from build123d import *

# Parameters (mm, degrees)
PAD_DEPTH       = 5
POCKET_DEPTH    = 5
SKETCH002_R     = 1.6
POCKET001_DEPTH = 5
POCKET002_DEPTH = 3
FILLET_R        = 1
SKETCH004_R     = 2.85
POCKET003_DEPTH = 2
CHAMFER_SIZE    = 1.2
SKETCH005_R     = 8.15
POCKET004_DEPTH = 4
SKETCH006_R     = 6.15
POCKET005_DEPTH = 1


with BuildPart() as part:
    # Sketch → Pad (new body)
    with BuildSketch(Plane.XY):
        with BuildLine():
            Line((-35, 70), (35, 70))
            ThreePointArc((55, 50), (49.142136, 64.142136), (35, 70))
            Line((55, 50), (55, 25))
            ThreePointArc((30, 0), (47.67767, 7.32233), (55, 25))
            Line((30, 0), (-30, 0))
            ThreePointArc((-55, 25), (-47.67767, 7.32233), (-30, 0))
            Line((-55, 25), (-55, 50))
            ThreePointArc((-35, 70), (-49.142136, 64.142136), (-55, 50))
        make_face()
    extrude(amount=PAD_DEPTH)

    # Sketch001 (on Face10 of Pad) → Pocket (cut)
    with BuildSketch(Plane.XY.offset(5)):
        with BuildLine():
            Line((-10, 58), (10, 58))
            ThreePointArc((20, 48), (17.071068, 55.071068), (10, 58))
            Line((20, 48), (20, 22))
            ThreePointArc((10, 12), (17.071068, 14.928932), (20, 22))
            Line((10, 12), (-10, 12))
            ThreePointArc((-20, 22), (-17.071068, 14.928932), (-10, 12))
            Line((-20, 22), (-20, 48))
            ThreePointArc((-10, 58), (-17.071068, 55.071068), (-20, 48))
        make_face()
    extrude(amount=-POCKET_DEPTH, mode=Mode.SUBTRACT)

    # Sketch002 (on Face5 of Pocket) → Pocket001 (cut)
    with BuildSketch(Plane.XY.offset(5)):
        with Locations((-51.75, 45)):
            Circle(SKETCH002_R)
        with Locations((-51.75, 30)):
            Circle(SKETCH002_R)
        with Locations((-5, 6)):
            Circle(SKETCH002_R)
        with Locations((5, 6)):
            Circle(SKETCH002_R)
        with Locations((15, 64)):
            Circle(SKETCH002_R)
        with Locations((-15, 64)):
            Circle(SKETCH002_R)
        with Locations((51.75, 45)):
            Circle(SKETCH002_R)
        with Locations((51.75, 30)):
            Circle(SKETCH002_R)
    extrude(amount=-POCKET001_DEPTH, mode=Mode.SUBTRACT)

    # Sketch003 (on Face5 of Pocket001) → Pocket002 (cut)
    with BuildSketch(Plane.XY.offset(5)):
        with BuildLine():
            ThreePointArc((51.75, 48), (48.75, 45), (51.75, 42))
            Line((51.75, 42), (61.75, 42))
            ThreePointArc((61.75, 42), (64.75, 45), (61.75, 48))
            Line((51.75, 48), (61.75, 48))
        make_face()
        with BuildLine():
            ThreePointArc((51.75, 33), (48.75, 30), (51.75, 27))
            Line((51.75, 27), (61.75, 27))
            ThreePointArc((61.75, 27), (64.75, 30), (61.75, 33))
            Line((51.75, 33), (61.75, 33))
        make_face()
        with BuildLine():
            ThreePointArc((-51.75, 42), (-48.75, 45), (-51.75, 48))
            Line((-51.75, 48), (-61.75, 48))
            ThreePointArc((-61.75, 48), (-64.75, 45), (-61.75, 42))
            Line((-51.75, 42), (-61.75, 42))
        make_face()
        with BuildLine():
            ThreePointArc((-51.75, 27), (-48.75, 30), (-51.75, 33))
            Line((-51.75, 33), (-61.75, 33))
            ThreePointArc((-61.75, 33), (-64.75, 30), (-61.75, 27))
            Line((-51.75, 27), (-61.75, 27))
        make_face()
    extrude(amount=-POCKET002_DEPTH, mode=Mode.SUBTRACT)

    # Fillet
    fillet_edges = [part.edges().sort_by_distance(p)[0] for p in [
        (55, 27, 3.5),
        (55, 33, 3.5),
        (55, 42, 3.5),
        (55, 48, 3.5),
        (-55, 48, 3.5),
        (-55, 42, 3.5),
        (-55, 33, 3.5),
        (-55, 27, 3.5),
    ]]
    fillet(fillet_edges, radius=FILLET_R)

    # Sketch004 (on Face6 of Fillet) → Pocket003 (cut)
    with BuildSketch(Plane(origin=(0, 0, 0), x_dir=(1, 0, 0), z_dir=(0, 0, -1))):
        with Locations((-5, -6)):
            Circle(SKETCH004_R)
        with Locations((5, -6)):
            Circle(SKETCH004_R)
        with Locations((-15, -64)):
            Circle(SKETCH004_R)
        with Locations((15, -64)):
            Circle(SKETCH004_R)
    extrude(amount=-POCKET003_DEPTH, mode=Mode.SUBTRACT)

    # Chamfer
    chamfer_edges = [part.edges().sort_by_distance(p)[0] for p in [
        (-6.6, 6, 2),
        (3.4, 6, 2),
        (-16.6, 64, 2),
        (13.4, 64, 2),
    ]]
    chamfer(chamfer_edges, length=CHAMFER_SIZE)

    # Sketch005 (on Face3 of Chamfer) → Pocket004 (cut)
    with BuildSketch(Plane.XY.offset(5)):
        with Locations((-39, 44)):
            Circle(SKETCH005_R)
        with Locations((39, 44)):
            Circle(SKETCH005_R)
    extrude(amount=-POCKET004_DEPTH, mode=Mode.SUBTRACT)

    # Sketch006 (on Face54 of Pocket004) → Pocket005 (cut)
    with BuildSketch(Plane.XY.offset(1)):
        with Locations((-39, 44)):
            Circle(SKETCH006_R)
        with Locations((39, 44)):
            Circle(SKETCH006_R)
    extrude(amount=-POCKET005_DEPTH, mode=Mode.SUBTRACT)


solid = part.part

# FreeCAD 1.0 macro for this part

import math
import FreeCAD as App
import Part
import Sketcher


def edges_at(feature, points):
    """Names of the edges that pass closest to the given points."""
    edges = feature.Shape.Edges
    near = lambda p: min(range(len(edges)), key=lambda i: edges[i].distToShape(Part.Vertex(*p))[0])
    return sorted({f"Edge{near(p) + 1}" for p in points})

doc = App.newDocument("Part")
body = doc.addObject("PartDesign::Body", "Body")

sketch1 = body.newObject("Sketcher::SketchObject", "Sketch")
sketch1.AttachmentSupport = (doc.getObject("XY_Plane"), [""])
sketch1.MapMode = "FlatFace"
sketch1.addGeometry(Part.LineSegment(App.Vector(35, 70, 0), App.Vector(-35, 70, 0)), False)
sketch1.addGeometry(Part.ArcOfCircle(Part.Circle(App.Vector(-35, 50, 0), App.Vector(0, 0, 1), 20), math.radians(90), math.radians(180)), False)
sketch1.addGeometry(Part.LineSegment(App.Vector(-55, 50, 0), App.Vector(-55, 25, 0)), False)
sketch1.addGeometry(Part.ArcOfCircle(Part.Circle(App.Vector(-30, 25, 0), App.Vector(0, 0, 1), 25), math.radians(180), math.radians(270)), False)
sketch1.addGeometry(Part.LineSegment(App.Vector(-30, 0, 0), App.Vector(30, 0, 0)), False)
sketch1.addGeometry(Part.ArcOfCircle(Part.Circle(App.Vector(30, 25, 0), App.Vector(0, 0, 1), 25), math.radians(-90), math.radians(0)), False)
sketch1.addGeometry(Part.LineSegment(App.Vector(55, 25, 0), App.Vector(55, 50, 0)), False)
sketch1.addGeometry(Part.ArcOfCircle(Part.Circle(App.Vector(35, 50, 0), App.Vector(0, 0, 1), 20), math.radians(0), math.radians(90)), False)
sketch1.addConstraint(Sketcher.Constraint("Tangent", 0, 2, 1, 1))
sketch1.addConstraint(Sketcher.Constraint("Tangent", 1, 2, 2, 1))
sketch1.addConstraint(Sketcher.Constraint("Tangent", 2, 2, 3, 1))
sketch1.addConstraint(Sketcher.Constraint("Tangent", 3, 2, 4, 1))
sketch1.addConstraint(Sketcher.Constraint("Tangent", 4, 2, 5, 1))
sketch1.addConstraint(Sketcher.Constraint("Tangent", 5, 2, 6, 1))
sketch1.addConstraint(Sketcher.Constraint("Tangent", 6, 2, 7, 1))
sketch1.addConstraint(Sketcher.Constraint("Tangent", 7, 2, 0, 1))
sketch1.addConstraint(Sketcher.Constraint("Horizontal", 0))
sketch1.addConstraint(Sketcher.Constraint("Vertical", 2))
sketch1.addConstraint(Sketcher.Constraint("Horizontal", 4))
sketch1.addConstraint(Sketcher.Constraint("Vertical", 6))
sketch1.addConstraint(Sketcher.Constraint("Equal", 3, 5))
sketch1.addConstraint(Sketcher.Constraint("Equal", 1, 7))
sketch1.addConstraint(Sketcher.Constraint("Symmetric", 3, 2, 4, 2, -1, 1))
sketch1.addConstraint(Sketcher.Constraint("Radius", 1, 19.999999))
sketch1.addConstraint(Sketcher.Constraint("Radius", 3, 24.999998))
sketch1.addConstraint(Sketcher.Constraint("DistanceX", 0, 2, 0, 1, 70.0))
sketch1.addConstraint(Sketcher.Constraint("DistanceY", 2, 2, 2, 1, 25.0))
pad1 = body.newObject("PartDesign::Pad", "Pad")
pad1.Profile = sketch1
pad1.Length = 5

sketch2 = body.newObject("Sketcher::SketchObject", "Sketch001")
sketch2.AttachmentSupport = (doc.getObject("XY_Plane"), [""])
sketch2.MapMode = "FlatFace"
sketch2.AttachmentOffset = App.Placement(App.Vector(0, 0, 5), App.Rotation())
sketch2.addGeometry(Part.LineSegment(App.Vector(10, 58, 0), App.Vector(-10, 58, 0)), False)
sketch2.addGeometry(Part.ArcOfCircle(Part.Circle(App.Vector(-10, 48, 0), App.Vector(0, 0, 1), 10), math.radians(90), math.radians(180)), False)
sketch2.addGeometry(Part.LineSegment(App.Vector(-20, 48, 0), App.Vector(-20, 22, 0)), False)
sketch2.addGeometry(Part.ArcOfCircle(Part.Circle(App.Vector(-10, 22, 0), App.Vector(0, 0, 1), 10), math.radians(180), math.radians(270)), False)
sketch2.addGeometry(Part.LineSegment(App.Vector(-10, 12, 0), App.Vector(10, 12, 0)), False)
sketch2.addGeometry(Part.ArcOfCircle(Part.Circle(App.Vector(10, 22, 0), App.Vector(0, 0, 1), 10), math.radians(-90), math.radians(0)), False)
sketch2.addGeometry(Part.LineSegment(App.Vector(20, 22, 0), App.Vector(20, 48, 0)), False)
sketch2.addGeometry(Part.ArcOfCircle(Part.Circle(App.Vector(10, 48, 0), App.Vector(0, 0, 1), 10), math.radians(0), math.radians(90)), False)
sketch2.addConstraint(Sketcher.Constraint("Tangent", 0, 2, 1, 1))
sketch2.addConstraint(Sketcher.Constraint("Tangent", 1, 2, 2, 1))
sketch2.addConstraint(Sketcher.Constraint("Tangent", 2, 2, 3, 1))
sketch2.addConstraint(Sketcher.Constraint("Tangent", 3, 2, 4, 1))
sketch2.addConstraint(Sketcher.Constraint("Tangent", 4, 2, 5, 1))
sketch2.addConstraint(Sketcher.Constraint("Tangent", 5, 2, 6, 1))
sketch2.addConstraint(Sketcher.Constraint("Tangent", 6, 2, 7, 1))
sketch2.addConstraint(Sketcher.Constraint("Tangent", 7, 2, 0, 1))
sketch2.addConstraint(Sketcher.Constraint("Horizontal", 0))
sketch2.addConstraint(Sketcher.Constraint("Vertical", 2))
sketch2.addConstraint(Sketcher.Constraint("Horizontal", 4))
sketch2.addConstraint(Sketcher.Constraint("Vertical", 6))
sketch2.addConstraint(Sketcher.Constraint("Equal", 1, 3))
sketch2.addConstraint(Sketcher.Constraint("Equal", 3, 5))
sketch2.addConstraint(Sketcher.Constraint("Equal", 5, 7))
sketch2.addConstraint(Sketcher.Constraint("Radius", 1, 9.999999))
sketch2.addConstraint(Sketcher.Constraint("DistanceX", 0, 2, 0, 1, 20.0))
sketch2.addConstraint(Sketcher.Constraint("DistanceY", 2, 2, 2, 1, 26.0))
sketch2.addConstraint(Sketcher.Constraint("DistanceX", 1, 3, -1, 1, 10.000001))
sketch2.addConstraint(Sketcher.Constraint("DistanceY", -1, 1, 1, 3, 48.000001))
pocket1 = body.newObject("PartDesign::Pocket", "Pocket")
pocket1.Profile = sketch2
pocket1.Length = 5

sketch3 = body.newObject("Sketcher::SketchObject", "Sketch002")
sketch3.AttachmentSupport = (doc.getObject("XY_Plane"), [""])
sketch3.MapMode = "FlatFace"
sketch3.AttachmentOffset = App.Placement(App.Vector(0, 0, 5), App.Rotation())
sketch3.addGeometry(Part.Circle(App.Vector(-51.8, 45, 0), App.Vector(0, 0, 1), 1.6), False)
sketch3.addGeometry(Part.Circle(App.Vector(-51.8, 30, 0), App.Vector(0, 0, 1), 1.6), False)
sketch3.addGeometry(Part.Circle(App.Vector(-5, 6, 0), App.Vector(0, 0, 1), 1.6), False)
sketch3.addGeometry(Part.Circle(App.Vector(5, 6, 0), App.Vector(0, 0, 1), 1.6), False)
sketch3.addGeometry(Part.Circle(App.Vector(15, 64, 0), App.Vector(0, 0, 1), 1.6), False)
sketch3.addGeometry(Part.Circle(App.Vector(-15, 64, 0), App.Vector(0, 0, 1), 1.6), False)
sketch3.addGeometry(Part.Circle(App.Vector(51.8, 45, 0), App.Vector(0, 0, 1), 1.6), False)
sketch3.addGeometry(Part.Circle(App.Vector(51.8, 30, 0), App.Vector(0, 0, 1), 1.6), False)
sketch3.addConstraint(Sketcher.Constraint("Equal", 0, 1))
sketch3.addConstraint(Sketcher.Constraint("Equal", 1, 2))
sketch3.addConstraint(Sketcher.Constraint("Equal", 2, 3))
sketch3.addConstraint(Sketcher.Constraint("Equal", 3, 4))
sketch3.addConstraint(Sketcher.Constraint("Equal", 4, 5))
sketch3.addConstraint(Sketcher.Constraint("Equal", 5, 6))
sketch3.addConstraint(Sketcher.Constraint("Equal", 6, 7))
sketch3.addConstraint(Sketcher.Constraint("Symmetric", 2, 3, 3, 3, -2))
sketch3.addConstraint(Sketcher.Constraint("Symmetric", 4, 3, 5, 3, -2))
sketch3.addConstraint(Sketcher.Constraint("Symmetric", 0, 3, 6, 3, -2))
sketch3.addConstraint(Sketcher.Constraint("Symmetric", 1, 3, 7, 3, -2))
sketch3.addConstraint(Sketcher.Constraint("Vertical", 0, 3, 1, 3))
sketch3.addConstraint(Sketcher.Constraint("Diameter", 0, 3.2))
sketch3.addConstraint(Sketcher.Constraint("DistanceY", -1, 1, 0, 3, 45.0))
sketch3.addConstraint(Sketcher.Constraint("DistanceY", -1, 1, 1, 3, 30.0))
sketch3.addConstraint(Sketcher.Constraint("DistanceX", 2, 3, -1, 1, 5.0))
sketch3.addConstraint(Sketcher.Constraint("DistanceY", -1, 1, 2, 3, 6.0))
sketch3.addConstraint(Sketcher.Constraint("DistanceX", -1, 1, 4, 3, 15.0))
sketch3.addConstraint(Sketcher.Constraint("DistanceY", -1, 1, 4, 3, 64.0))
sketch3.addConstraint(Sketcher.Constraint("DistanceX", 0, 3, 6, 3, 103.5))
pocket2 = body.newObject("PartDesign::Pocket", "Pocket001")
pocket2.Profile = sketch3
pocket2.Length = 5

sketch4 = body.newObject("Sketcher::SketchObject", "Sketch003")
sketch4.AttachmentSupport = (doc.getObject("XY_Plane"), [""])
sketch4.MapMode = "FlatFace"
sketch4.AttachmentOffset = App.Placement(App.Vector(0, 0, 5), App.Rotation())
sketch4.addGeometry(Part.ArcOfCircle(Part.Circle(App.Vector(51.8, 45, 0), App.Vector(0, 0, 1), 3), math.radians(90), math.radians(270)), False)
sketch4.addGeometry(Part.LineSegment(App.Vector(51.8, 42, 0), App.Vector(61.8, 42, 0)), False)
sketch4.addGeometry(Part.ArcOfCircle(Part.Circle(App.Vector(61.8, 45, 0), App.Vector(0, 0, 1), 3), math.radians(-90), math.radians(90)), False)
sketch4.addGeometry(Part.LineSegment(App.Vector(61.8, 48, 0), App.Vector(51.8, 48, 0)), False)
sketch4.addGeometry(Part.ArcOfCircle(Part.Circle(App.Vector(51.8, 30, 0), App.Vector(0, 0, 1), 3), math.radians(90), math.radians(270)), False)
sketch4.addGeometry(Part.LineSegment(App.Vector(51.8, 27, 0), App.Vector(61.8, 27, 0)), False)
sketch4.addGeometry(Part.ArcOfCircle(Part.Circle(App.Vector(61.8, 30, 0), App.Vector(0, 0, 1), 3), math.radians(-90), math.radians(90)), False)
sketch4.addGeometry(Part.LineSegment(App.Vector(61.8, 33, 0), App.Vector(51.8, 33, 0)), False)
sketch4.addGeometry(Part.ArcOfCircle(Part.Circle(App.Vector(-51.8, 45, 0), App.Vector(0, 0, 1), 3), math.radians(-90), math.radians(90)), False)
sketch4.addGeometry(Part.LineSegment(App.Vector(-51.8, 48, 0), App.Vector(-61.8, 48, 0)), False)
sketch4.addGeometry(Part.ArcOfCircle(Part.Circle(App.Vector(-61.8, 45, 0), App.Vector(0, 0, 1), 3), math.radians(90), math.radians(270)), False)
sketch4.addGeometry(Part.LineSegment(App.Vector(-61.8, 42, 0), App.Vector(-51.8, 42, 0)), False)
sketch4.addGeometry(Part.ArcOfCircle(Part.Circle(App.Vector(-51.8, 30, 0), App.Vector(0, 0, 1), 3), math.radians(-90), math.radians(90)), False)
sketch4.addGeometry(Part.LineSegment(App.Vector(-51.8, 33, 0), App.Vector(-61.8, 33, 0)), False)
sketch4.addGeometry(Part.ArcOfCircle(Part.Circle(App.Vector(-61.8, 30, 0), App.Vector(0, 0, 1), 3), math.radians(90), math.radians(270)), False)
sketch4.addGeometry(Part.LineSegment(App.Vector(-61.8, 27, 0), App.Vector(-51.8, 27, 0)), False)
sketch4.addConstraint(Sketcher.Constraint("Tangent", 0, 2, 1, 1))
sketch4.addConstraint(Sketcher.Constraint("Tangent", 1, 2, 2, 1))
sketch4.addConstraint(Sketcher.Constraint("Tangent", 2, 2, 3, 1))
sketch4.addConstraint(Sketcher.Constraint("Tangent", 3, 2, 0, 1))
sketch4.addConstraint(Sketcher.Constraint("Tangent", 4, 2, 5, 1))
sketch4.addConstraint(Sketcher.Constraint("Tangent", 5, 2, 6, 1))
sketch4.addConstraint(Sketcher.Constraint("Tangent", 6, 2, 7, 1))
sketch4.addConstraint(Sketcher.Constraint("Tangent", 7, 2, 4, 1))
sketch4.addConstraint(Sketcher.Constraint("Tangent", 8, 2, 9, 1))
sketch4.addConstraint(Sketcher.Constraint("Tangent", 9, 2, 10, 1))
sketch4.addConstraint(Sketcher.Constraint("Tangent", 10, 2, 11, 1))
sketch4.addConstraint(Sketcher.Constraint("Tangent", 11, 2, 8, 1))
sketch4.addConstraint(Sketcher.Constraint("Tangent", 12, 2, 13, 1))
sketch4.addConstraint(Sketcher.Constraint("Tangent", 13, 2, 14, 1))
sketch4.addConstraint(Sketcher.Constraint("Tangent", 14, 2, 15, 1))
sketch4.addConstraint(Sketcher.Constraint("Tangent", 15, 2, 12, 1))
sketch4.addConstraint(Sketcher.Constraint("Horizontal", 1))
sketch4.addConstraint(Sketcher.Constraint("Horizontal", 3))
sketch4.addConstraint(Sketcher.Constraint("Horizontal", 5))
sketch4.addConstraint(Sketcher.Constraint("Horizontal", 7))
sketch4.addConstraint(Sketcher.Constraint("Horizontal", 9))
sketch4.addConstraint(Sketcher.Constraint("Horizontal", 11))
sketch4.addConstraint(Sketcher.Constraint("Horizontal", 13))
sketch4.addConstraint(Sketcher.Constraint("Horizontal", 15))
sketch4.addConstraint(Sketcher.Constraint("Equal", 2, 4))
sketch4.addConstraint(Sketcher.Constraint("Equal", 6, 8))
sketch4.addConstraint(Sketcher.Constraint("Equal", 10, 12))
sketch4.addConstraint(Sketcher.Constraint("Symmetric", 0, 3, 8, 3, -2))
sketch4.addConstraint(Sketcher.Constraint("Symmetric", 4, 3, 12, 3, -2))
sketch4.addConstraint(Sketcher.Constraint("Vertical", 0, 3, 4, 3))
sketch4.addConstraint(Sketcher.Constraint("Vertical", 2, 3, 6, 3))
sketch4.addConstraint(Sketcher.Constraint("Vertical", 10, 3, 14, 3))
sketch4.addConstraint(Sketcher.Constraint("Equal", 7, 9))
sketch4.addConstraint(Sketcher.Constraint("Radius", 0, 3.0))
sketch4.addConstraint(Sketcher.Constraint("DistanceX", 1, 1, 1, 2, 10.0))
sketch4.addConstraint(Sketcher.Constraint("DistanceY", -1, 1, 0, 3, 45.0))
sketch4.addConstraint(Sketcher.Constraint("DistanceY", -1, 1, 4, 3, 30.0))
sketch4.addConstraint(Sketcher.Constraint("DistanceX", 8, 3, 0, 3, 103.5))
pocket3 = body.newObject("PartDesign::Pocket", "Pocket002")
pocket3.Profile = sketch4
pocket3.Length = 3
doc.recompute()

fillet = body.newObject("PartDesign::Fillet", "Fillet")
fillet.Base = (pocket3, edges_at(pocket3, [
    (55, 27, 3.5),
    (55, 33, 3.5),
    (55, 42, 3.5),
    (55, 48, 3.5),
    (-55, 48, 3.5),
    (-55, 42, 3.5),
    (-55, 33, 3.5),
    (-55, 27, 3.5),
]))
fillet.Radius = 1

sketch5 = body.newObject("Sketcher::SketchObject", "Sketch004")
sketch5.AttachmentSupport = (doc.getObject("XY_Plane"), [""])
sketch5.MapMode = "FlatFace"
sketch5.addGeometry(Part.Circle(App.Vector(-5, 6, 0), App.Vector(0, 0, 1), 2.9), False)
sketch5.addGeometry(Part.Circle(App.Vector(5, 6, 0), App.Vector(0, 0, 1), 2.9), False)
sketch5.addGeometry(Part.Circle(App.Vector(-15, 64, 0), App.Vector(0, 0, 1), 2.9), False)
sketch5.addGeometry(Part.Circle(App.Vector(15, 64, 0), App.Vector(0, 0, 1), 2.9), False)
sketch5.addConstraint(Sketcher.Constraint("Equal", 0, 1))
sketch5.addConstraint(Sketcher.Constraint("Equal", 1, 2))
sketch5.addConstraint(Sketcher.Constraint("Equal", 2, 3))
sketch5.addConstraint(Sketcher.Constraint("Symmetric", 0, 3, 1, 3, -2))
sketch5.addConstraint(Sketcher.Constraint("Symmetric", 2, 3, 3, 3, -2))
sketch5.addConstraint(Sketcher.Constraint("Diameter", 0, 5.7))
sketch5.addConstraint(Sketcher.Constraint("DistanceX", 0, 3, -1, 1, 5.0))
sketch5.addConstraint(Sketcher.Constraint("DistanceY", -1, 1, 0, 3, 6.0))
sketch5.addConstraint(Sketcher.Constraint("DistanceX", 2, 3, -1, 1, 15.0))
sketch5.addConstraint(Sketcher.Constraint("DistanceY", -1, 1, 2, 3, 64.0))
pocket4 = body.newObject("PartDesign::Pocket", "Pocket003")
pocket4.Profile = sketch5
pocket4.Length = 2
pocket4.Reversed = True
doc.recompute()

chamfer = body.newObject("PartDesign::Chamfer", "Chamfer")
chamfer.Base = (pocket4, edges_at(pocket4, [
    (-6.6, 6, 2),
    (3.4, 6, 2),
    (-16.6, 64, 2),
    (13.4, 64, 2),
]))
chamfer.Size = 1.2

sketch6 = body.newObject("Sketcher::SketchObject", "Sketch005")
sketch6.AttachmentSupport = (doc.getObject("XY_Plane"), [""])
sketch6.MapMode = "FlatFace"
sketch6.AttachmentOffset = App.Placement(App.Vector(0, 0, 5), App.Rotation())
sketch6.addGeometry(Part.Circle(App.Vector(-39, 44, 0), App.Vector(0, 0, 1), 8), False)
sketch6.addGeometry(Part.Circle(App.Vector(39, 44, 0), App.Vector(0, 0, 1), 8), False)
sketch6.addConstraint(Sketcher.Constraint("Equal", 0, 1))
sketch6.addConstraint(Sketcher.Constraint("Symmetric", 0, 3, 1, 3, -2))
sketch6.addConstraint(Sketcher.Constraint("Diameter", 0, 16.3))
sketch6.addConstraint(Sketcher.Constraint("DistanceX", 0, 3, -1, 1, 39.0))
sketch6.addConstraint(Sketcher.Constraint("DistanceY", -1, 1, 0, 3, 44.0))
pocket5 = body.newObject("PartDesign::Pocket", "Pocket004")
pocket5.Profile = sketch6
pocket5.Length = 4

sketch7 = body.newObject("Sketcher::SketchObject", "Sketch006")
sketch7.AttachmentSupport = (doc.getObject("XY_Plane"), [""])
sketch7.MapMode = "FlatFace"
sketch7.AttachmentOffset = App.Placement(App.Vector(0, 0, 1), App.Rotation())
sketch7.addGeometry(Part.Circle(App.Vector(-39, 44, 0), App.Vector(0, 0, 1), 6), False)
sketch7.addGeometry(Part.Circle(App.Vector(39, 44, 0), App.Vector(0, 0, 1), 6), False)
sketch7.addConstraint(Sketcher.Constraint("Equal", 0, 1))
sketch7.addConstraint(Sketcher.Constraint("Symmetric", 0, 3, 1, 3, -2))
sketch7.addConstraint(Sketcher.Constraint("Diameter", 0, 12.3))
sketch7.addConstraint(Sketcher.Constraint("DistanceX", 0, 3, -1, 1, 39.0))
sketch7.addConstraint(Sketcher.Constraint("DistanceY", -1, 1, 0, 3, 44.0))
pocket6 = body.newObject("PartDesign::Pocket", "Pocket005")
pocket6.Profile = sketch7
pocket6.Length = 1

doc.recompute()
